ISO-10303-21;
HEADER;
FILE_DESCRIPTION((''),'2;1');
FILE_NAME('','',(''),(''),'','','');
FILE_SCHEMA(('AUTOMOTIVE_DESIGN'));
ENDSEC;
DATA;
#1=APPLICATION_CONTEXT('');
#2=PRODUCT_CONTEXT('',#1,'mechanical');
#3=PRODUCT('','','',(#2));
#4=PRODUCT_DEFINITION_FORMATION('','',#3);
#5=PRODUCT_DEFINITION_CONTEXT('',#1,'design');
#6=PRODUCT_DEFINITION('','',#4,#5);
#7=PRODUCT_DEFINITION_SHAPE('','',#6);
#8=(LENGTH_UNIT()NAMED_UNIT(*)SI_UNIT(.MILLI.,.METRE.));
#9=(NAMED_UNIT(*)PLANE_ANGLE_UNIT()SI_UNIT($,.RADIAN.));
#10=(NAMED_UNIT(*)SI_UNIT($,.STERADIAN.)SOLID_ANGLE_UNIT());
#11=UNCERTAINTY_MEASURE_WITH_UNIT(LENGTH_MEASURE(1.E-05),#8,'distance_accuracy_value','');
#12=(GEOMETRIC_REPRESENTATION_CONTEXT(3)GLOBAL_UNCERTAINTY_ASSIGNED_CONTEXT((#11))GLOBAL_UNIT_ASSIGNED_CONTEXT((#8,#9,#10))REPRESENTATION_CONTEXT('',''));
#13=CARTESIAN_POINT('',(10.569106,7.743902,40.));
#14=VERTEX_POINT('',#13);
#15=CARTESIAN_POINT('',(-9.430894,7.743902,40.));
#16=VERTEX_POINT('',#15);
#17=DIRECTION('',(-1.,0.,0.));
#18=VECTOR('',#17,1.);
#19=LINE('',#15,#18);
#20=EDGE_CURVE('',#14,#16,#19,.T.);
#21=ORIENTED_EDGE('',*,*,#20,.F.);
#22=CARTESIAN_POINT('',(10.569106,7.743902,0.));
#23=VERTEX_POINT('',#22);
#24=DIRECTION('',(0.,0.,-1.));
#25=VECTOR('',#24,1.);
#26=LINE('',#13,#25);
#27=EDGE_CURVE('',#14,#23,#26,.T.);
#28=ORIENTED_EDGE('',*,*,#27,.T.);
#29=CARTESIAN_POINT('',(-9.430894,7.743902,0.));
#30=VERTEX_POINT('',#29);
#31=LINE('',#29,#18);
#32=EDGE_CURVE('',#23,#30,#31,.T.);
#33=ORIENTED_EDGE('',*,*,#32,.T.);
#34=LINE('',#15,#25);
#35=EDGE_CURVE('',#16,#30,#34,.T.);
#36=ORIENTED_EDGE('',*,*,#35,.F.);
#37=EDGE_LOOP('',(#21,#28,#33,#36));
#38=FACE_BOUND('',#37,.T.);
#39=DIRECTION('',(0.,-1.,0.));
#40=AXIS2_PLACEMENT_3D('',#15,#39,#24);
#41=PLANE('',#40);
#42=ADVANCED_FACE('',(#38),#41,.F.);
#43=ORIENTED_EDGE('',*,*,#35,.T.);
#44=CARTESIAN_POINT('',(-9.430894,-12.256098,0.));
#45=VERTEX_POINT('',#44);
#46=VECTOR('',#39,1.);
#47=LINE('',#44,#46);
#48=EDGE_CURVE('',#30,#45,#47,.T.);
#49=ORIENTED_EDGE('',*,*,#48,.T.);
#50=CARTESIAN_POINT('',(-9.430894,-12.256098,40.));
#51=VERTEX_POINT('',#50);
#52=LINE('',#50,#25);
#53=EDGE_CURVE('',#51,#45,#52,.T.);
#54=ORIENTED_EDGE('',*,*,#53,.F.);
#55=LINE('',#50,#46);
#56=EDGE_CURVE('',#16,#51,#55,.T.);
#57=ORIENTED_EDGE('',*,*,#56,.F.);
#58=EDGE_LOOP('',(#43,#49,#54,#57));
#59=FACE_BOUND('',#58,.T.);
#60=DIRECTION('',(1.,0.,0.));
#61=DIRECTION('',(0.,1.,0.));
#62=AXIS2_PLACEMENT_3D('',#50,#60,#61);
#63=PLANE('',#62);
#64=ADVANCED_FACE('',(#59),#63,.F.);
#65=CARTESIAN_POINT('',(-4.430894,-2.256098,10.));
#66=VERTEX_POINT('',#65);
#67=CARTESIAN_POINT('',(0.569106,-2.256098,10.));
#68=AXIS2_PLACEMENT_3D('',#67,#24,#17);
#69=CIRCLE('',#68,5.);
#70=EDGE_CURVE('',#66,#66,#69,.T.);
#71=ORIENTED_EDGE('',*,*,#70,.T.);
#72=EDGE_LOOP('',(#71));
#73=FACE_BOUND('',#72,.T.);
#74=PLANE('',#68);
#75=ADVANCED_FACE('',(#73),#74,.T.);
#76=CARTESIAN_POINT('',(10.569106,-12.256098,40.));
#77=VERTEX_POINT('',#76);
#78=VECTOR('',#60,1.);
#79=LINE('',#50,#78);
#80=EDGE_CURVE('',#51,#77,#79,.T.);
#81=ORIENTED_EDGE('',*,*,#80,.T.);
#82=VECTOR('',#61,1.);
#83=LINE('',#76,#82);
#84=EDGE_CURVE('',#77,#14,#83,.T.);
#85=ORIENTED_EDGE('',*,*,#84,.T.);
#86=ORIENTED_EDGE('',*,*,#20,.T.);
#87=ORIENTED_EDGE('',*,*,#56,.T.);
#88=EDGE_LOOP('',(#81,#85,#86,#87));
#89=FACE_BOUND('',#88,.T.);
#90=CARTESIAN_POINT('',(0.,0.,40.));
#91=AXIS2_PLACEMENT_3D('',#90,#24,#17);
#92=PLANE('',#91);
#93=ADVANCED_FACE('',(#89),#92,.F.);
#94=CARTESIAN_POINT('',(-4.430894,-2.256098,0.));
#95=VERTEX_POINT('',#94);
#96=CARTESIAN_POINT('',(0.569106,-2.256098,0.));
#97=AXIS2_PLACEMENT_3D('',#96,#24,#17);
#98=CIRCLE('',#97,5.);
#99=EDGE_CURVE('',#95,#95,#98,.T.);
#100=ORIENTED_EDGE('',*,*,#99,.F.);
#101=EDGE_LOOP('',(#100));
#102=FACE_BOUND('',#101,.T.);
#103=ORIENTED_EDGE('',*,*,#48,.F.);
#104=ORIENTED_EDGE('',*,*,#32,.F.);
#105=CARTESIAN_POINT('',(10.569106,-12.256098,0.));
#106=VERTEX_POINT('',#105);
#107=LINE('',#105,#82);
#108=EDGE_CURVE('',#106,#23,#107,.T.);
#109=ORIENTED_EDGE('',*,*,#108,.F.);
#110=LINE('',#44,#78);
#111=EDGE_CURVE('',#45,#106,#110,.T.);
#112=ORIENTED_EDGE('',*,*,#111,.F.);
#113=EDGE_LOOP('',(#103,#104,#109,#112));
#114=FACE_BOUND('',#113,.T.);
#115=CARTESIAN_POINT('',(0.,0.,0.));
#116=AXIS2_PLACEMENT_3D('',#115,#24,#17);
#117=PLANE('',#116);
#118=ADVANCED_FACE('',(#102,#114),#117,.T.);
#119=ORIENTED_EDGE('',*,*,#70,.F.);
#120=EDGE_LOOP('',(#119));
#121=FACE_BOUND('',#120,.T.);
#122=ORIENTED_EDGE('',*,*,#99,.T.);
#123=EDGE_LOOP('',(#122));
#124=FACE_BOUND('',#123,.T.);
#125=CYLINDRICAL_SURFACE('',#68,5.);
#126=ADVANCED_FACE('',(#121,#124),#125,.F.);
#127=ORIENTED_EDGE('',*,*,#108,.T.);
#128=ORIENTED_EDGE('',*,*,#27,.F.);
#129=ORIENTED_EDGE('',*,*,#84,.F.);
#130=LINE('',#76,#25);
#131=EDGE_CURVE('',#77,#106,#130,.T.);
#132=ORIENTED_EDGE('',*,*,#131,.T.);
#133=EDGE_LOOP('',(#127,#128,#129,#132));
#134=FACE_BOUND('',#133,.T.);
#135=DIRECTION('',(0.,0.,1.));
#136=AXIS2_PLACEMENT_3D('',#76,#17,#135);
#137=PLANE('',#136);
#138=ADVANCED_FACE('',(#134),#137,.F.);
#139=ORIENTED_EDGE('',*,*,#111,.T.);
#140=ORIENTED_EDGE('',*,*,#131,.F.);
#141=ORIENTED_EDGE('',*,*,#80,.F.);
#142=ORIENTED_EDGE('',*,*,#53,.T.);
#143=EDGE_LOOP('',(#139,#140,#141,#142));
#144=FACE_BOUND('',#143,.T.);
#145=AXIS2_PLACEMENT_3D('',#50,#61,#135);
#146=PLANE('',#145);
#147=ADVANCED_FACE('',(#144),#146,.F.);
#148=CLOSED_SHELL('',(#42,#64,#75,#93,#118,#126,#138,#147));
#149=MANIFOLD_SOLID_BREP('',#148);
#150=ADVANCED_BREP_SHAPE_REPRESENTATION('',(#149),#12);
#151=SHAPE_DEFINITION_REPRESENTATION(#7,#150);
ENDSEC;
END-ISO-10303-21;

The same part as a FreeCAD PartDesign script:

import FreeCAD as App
import Part
import Sketcher
from FreeCAD import Vector
Q = App.Units.Quantity

doc = App.newDocument("Part")
body = doc.addObject("PartDesign::Body", "Body")

# Sketch on XY plane
sketch1 = body.newObject("Sketcher::SketchObject", "Sketch")
sketch1.AttachmentSupport = (doc.getObject("XY_Plane"), [""])
sketch1.MapMode = "FlatFace"
sketch1.addGeometry(Part.LineSegment(Vector(-9.430894, 7.743902, 0), Vector(-9.430894, -12.256098, 0)), False)
sketch1.addGeometry(Part.LineSegment(Vector(-9.430894, -12.256098, 0), Vector(10.569106, -12.256098, 0)), False)
sketch1.addGeometry(Part.LineSegment(Vector(10.569106, -12.256098, 0), Vector(10.569106, 7.743902, 0)), False)
sketch1.addGeometry(Part.LineSegment(Vector(10.569106, 7.743902, 0), Vector(-9.430894, 7.743902, 0)), False)
sketch1.addConstraint(Sketcher.Constraint("Coincident", 0, 2, 1, 1))
sketch1.addConstraint(Sketcher.Constraint("Coincident", 1, 2, 2, 1))
sketch1.addConstraint(Sketcher.Constraint("Coincident", 2, 2, 3, 1))
sketch1.addConstraint(Sketcher.Constraint("Coincident", 3, 2, 0, 1))
sketch1.addConstraint(Sketcher.Constraint("Vertical", 0))
sketch1.addConstraint(Sketcher.Constraint("Horizontal", 1))
sketch1.addConstraint(Sketcher.Constraint("Vertical", 2))
sketch1.addConstraint(Sketcher.Constraint("Horizontal", 3))
sketch1.addConstraint(Sketcher.Constraint("Equal", 3, 0))
sketch1.addConstraint(Sketcher.Constraint("DistanceX", 1, 1, 1, 2, Q("20 mm")))
sketch1.addConstraint(Sketcher.Constraint("DistanceX", 0, 2, -1, 1, Q("9.430894 mm")))
sketch1.addConstraint(Sketcher.Constraint("DistanceY", 0, 2, -1, 1, Q("12.256098 mm")))
pad1 = body.newObject("PartDesign::Pad", "Pad")
pad1.Profile = sketch1
pad1.Length = 40

# Sketch on XY plane
sketch2 = body.newObject("Sketcher::SketchObject", "Sketch001")
sketch2.AttachmentSupport = (doc.getObject("XY_Plane"), [""])
sketch2.MapMode = "FlatFace"
sketch2.addGeometry(Part.Circle(Vector(0.569106, -2.256098, 0), Vector(0, 0, 1), 5), False)
sketch2.addConstraint(Sketcher.Constraint("Diameter", 0, Q("10 mm")))
sketch2.addConstraint(Sketcher.Constraint("DistanceX", -1, 1, 0, 3, Q("0.569106 mm")))
sketch2.addConstraint(Sketcher.Constraint("DistanceY", 0, 3, -1, 1, Q("2.256098 mm")))
pocket1 = body.newObject("PartDesign::Pocket", "Pocket")
pocket1.Profile = sketch2
pocket1.Length = 20
pocket1.Midplane = True

doc.recompute()
